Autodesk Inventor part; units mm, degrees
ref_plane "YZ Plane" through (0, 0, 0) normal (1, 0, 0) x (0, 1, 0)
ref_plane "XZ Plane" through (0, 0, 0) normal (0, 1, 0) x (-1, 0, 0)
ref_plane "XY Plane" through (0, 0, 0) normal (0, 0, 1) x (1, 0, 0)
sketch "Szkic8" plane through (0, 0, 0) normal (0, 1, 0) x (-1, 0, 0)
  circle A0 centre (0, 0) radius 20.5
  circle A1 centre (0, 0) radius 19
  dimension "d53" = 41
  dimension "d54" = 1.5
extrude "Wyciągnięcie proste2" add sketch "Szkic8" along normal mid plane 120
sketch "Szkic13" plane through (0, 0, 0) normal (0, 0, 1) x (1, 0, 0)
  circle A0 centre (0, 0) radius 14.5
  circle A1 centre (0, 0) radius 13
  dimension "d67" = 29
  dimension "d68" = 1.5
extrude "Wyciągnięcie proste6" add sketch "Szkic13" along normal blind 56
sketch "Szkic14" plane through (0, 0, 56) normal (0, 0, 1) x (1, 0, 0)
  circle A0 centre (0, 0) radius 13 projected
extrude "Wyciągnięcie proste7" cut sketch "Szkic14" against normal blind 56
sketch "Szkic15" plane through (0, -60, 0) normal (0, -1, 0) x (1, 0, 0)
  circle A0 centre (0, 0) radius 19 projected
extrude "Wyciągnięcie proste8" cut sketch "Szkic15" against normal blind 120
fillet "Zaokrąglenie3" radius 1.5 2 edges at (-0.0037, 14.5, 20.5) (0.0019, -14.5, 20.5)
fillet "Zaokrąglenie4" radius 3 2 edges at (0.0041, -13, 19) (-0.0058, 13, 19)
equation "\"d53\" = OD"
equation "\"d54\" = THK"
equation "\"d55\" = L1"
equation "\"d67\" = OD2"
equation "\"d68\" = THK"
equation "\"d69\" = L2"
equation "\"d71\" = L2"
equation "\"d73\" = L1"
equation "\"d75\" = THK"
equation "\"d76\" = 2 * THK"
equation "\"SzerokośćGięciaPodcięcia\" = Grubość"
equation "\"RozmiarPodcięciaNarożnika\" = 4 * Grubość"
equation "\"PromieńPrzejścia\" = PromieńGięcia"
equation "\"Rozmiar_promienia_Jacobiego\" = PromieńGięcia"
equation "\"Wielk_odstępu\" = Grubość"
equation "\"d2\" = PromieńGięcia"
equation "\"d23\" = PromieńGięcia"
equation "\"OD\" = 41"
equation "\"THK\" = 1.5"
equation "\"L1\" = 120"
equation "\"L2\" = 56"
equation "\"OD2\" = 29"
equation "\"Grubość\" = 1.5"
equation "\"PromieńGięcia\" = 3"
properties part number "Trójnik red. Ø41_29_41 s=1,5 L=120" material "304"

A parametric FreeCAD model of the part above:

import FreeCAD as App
import Part
import Sketcher
from FreeCAD import Vector
Q = App.Units.Quantity


def edges_at(feature, points):
    """Names of the edges that pass closest to the given points."""
    edges = feature.Shape.Edges
    near = lambda p: min(range(len(edges)), key=lambda i: edges[i].distToShape(Part.Vertex(*p))[0])
    return sorted({f"Edge{near(p) + 1}" for p in points})

doc = App.newDocument("Part")
body = doc.addObject("PartDesign::Body", "Body")

sketch1 = body.newObject("Sketcher::SketchObject", "Sketch")
sketch1.AttachmentSupport = (doc.getObject("XZ_Plane"), [""])
sketch1.MapMode = "FlatFace"
sketch1.addGeometry([
    Part.Circle(Vector(0, 0, 0), Vector(0, 0, 1), 20),
    Part.Circle(Vector(0, 0, 0), Vector(0, 0, 1), 19),
], False)
sketch1.addConstraint([
    Sketcher.Constraint("Coincident", 0, 3, -1, 1),
    Sketcher.Constraint("Coincident", 1, 3, -1, 1),
    Sketcher.Constraint("Diameter", 0, Q("41 mm")),
    Sketcher.Constraint("Diameter", 1, Q("38 mm")),
])
pad1 = body.newObject("PartDesign::Pad", "Pad")
pad1.Profile = sketch1
pad1.Length = 120
pad1.Midplane = True

sketch2 = body.newObject("Sketcher::SketchObject", "Sketch001")
sketch2.AttachmentSupport = (doc.getObject("XY_Plane"), [""])
sketch2.MapMode = "FlatFace"
sketch2.addGeometry([
    Part.Circle(Vector(0, 0, 0), Vector(0, 0, 1), 14),
    Part.Circle(Vector(0, 0, 0), Vector(0, 0, 1), 13),
], False)
sketch2.addConstraint([
    Sketcher.Constraint("Coincident", 0, 3, -1, 1),
    Sketcher.Constraint("Coincident", 1, 3, -1, 1),
    Sketcher.Constraint("Diameter", 0, Q("29 mm")),
    Sketcher.Constraint("Diameter", 1, Q("26 mm")),
])
pad2 = body.newObject("PartDesign::Pad", "Pad001")
pad2.Profile = sketch2
pad2.Length = 56

sketch3 = body.newObject("Sketcher::SketchObject", "Sketch002")
sketch3.AttachmentSupport = (doc.getObject("XY_Plane"), [""])
sketch3.MapMode = "FlatFace"
sketch3.AttachmentOffset = App.Placement(Vector(0, 0, 56), App.Rotation())
sketch3.addGeometry(Part.Circle(Vector(0, 0, 0), Vector(0, 0, 1), 13), False)
sketch3.addConstraint([
    Sketcher.Constraint("Coincident", 0, 3, -1, 1),
    Sketcher.Constraint("Diameter", 0, Q("26 mm")),
])
pocket1 = body.newObject("PartDesign::Pocket", "Pocket")
pocket1.Profile = sketch3
pocket1.Length = 56

sketch4 = body.newObject("Sketcher::SketchObject", "Sketch003")
sketch4.AttachmentSupport = (doc.getObject("XZ_Plane"), [""])
sketch4.MapMode = "FlatFace"
sketch4.AttachmentOffset = App.Placement(Vector(0, 0, 60), App.Rotation())
sketch4.addGeometry(Part.Circle(Vector(0, 0, 0), Vector(0, 0, 1), 19), False)
sketch4.addConstraint([
    Sketcher.Constraint("Coincident", 0, 3, -1, 1),
    Sketcher.Constraint("Diameter", 0, Q("38 mm")),
])
pocket2 = body.newObject("PartDesign::Pocket", "Pocket001")
pocket2.Profile = sketch4
pocket2.Length = 120
doc.recompute()

fillet = body.newObject("PartDesign::Fillet", "Fillet")
fillet.Base = (pocket2, edges_at(pocket2, [(-0.004, 14.5, 20.5), (0.002, -14.5, 20.5)]))
fillet.Radius = 1.5
doc.recompute()

fillet2 = body.newObject("PartDesign::Fillet", "Fillet001")
fillet2.Base = (fillet, edges_at(fillet, [(0.004, -13, 19), (-0.006, 13, 19)]))
fillet2.Radius = 3

doc.recompute()
